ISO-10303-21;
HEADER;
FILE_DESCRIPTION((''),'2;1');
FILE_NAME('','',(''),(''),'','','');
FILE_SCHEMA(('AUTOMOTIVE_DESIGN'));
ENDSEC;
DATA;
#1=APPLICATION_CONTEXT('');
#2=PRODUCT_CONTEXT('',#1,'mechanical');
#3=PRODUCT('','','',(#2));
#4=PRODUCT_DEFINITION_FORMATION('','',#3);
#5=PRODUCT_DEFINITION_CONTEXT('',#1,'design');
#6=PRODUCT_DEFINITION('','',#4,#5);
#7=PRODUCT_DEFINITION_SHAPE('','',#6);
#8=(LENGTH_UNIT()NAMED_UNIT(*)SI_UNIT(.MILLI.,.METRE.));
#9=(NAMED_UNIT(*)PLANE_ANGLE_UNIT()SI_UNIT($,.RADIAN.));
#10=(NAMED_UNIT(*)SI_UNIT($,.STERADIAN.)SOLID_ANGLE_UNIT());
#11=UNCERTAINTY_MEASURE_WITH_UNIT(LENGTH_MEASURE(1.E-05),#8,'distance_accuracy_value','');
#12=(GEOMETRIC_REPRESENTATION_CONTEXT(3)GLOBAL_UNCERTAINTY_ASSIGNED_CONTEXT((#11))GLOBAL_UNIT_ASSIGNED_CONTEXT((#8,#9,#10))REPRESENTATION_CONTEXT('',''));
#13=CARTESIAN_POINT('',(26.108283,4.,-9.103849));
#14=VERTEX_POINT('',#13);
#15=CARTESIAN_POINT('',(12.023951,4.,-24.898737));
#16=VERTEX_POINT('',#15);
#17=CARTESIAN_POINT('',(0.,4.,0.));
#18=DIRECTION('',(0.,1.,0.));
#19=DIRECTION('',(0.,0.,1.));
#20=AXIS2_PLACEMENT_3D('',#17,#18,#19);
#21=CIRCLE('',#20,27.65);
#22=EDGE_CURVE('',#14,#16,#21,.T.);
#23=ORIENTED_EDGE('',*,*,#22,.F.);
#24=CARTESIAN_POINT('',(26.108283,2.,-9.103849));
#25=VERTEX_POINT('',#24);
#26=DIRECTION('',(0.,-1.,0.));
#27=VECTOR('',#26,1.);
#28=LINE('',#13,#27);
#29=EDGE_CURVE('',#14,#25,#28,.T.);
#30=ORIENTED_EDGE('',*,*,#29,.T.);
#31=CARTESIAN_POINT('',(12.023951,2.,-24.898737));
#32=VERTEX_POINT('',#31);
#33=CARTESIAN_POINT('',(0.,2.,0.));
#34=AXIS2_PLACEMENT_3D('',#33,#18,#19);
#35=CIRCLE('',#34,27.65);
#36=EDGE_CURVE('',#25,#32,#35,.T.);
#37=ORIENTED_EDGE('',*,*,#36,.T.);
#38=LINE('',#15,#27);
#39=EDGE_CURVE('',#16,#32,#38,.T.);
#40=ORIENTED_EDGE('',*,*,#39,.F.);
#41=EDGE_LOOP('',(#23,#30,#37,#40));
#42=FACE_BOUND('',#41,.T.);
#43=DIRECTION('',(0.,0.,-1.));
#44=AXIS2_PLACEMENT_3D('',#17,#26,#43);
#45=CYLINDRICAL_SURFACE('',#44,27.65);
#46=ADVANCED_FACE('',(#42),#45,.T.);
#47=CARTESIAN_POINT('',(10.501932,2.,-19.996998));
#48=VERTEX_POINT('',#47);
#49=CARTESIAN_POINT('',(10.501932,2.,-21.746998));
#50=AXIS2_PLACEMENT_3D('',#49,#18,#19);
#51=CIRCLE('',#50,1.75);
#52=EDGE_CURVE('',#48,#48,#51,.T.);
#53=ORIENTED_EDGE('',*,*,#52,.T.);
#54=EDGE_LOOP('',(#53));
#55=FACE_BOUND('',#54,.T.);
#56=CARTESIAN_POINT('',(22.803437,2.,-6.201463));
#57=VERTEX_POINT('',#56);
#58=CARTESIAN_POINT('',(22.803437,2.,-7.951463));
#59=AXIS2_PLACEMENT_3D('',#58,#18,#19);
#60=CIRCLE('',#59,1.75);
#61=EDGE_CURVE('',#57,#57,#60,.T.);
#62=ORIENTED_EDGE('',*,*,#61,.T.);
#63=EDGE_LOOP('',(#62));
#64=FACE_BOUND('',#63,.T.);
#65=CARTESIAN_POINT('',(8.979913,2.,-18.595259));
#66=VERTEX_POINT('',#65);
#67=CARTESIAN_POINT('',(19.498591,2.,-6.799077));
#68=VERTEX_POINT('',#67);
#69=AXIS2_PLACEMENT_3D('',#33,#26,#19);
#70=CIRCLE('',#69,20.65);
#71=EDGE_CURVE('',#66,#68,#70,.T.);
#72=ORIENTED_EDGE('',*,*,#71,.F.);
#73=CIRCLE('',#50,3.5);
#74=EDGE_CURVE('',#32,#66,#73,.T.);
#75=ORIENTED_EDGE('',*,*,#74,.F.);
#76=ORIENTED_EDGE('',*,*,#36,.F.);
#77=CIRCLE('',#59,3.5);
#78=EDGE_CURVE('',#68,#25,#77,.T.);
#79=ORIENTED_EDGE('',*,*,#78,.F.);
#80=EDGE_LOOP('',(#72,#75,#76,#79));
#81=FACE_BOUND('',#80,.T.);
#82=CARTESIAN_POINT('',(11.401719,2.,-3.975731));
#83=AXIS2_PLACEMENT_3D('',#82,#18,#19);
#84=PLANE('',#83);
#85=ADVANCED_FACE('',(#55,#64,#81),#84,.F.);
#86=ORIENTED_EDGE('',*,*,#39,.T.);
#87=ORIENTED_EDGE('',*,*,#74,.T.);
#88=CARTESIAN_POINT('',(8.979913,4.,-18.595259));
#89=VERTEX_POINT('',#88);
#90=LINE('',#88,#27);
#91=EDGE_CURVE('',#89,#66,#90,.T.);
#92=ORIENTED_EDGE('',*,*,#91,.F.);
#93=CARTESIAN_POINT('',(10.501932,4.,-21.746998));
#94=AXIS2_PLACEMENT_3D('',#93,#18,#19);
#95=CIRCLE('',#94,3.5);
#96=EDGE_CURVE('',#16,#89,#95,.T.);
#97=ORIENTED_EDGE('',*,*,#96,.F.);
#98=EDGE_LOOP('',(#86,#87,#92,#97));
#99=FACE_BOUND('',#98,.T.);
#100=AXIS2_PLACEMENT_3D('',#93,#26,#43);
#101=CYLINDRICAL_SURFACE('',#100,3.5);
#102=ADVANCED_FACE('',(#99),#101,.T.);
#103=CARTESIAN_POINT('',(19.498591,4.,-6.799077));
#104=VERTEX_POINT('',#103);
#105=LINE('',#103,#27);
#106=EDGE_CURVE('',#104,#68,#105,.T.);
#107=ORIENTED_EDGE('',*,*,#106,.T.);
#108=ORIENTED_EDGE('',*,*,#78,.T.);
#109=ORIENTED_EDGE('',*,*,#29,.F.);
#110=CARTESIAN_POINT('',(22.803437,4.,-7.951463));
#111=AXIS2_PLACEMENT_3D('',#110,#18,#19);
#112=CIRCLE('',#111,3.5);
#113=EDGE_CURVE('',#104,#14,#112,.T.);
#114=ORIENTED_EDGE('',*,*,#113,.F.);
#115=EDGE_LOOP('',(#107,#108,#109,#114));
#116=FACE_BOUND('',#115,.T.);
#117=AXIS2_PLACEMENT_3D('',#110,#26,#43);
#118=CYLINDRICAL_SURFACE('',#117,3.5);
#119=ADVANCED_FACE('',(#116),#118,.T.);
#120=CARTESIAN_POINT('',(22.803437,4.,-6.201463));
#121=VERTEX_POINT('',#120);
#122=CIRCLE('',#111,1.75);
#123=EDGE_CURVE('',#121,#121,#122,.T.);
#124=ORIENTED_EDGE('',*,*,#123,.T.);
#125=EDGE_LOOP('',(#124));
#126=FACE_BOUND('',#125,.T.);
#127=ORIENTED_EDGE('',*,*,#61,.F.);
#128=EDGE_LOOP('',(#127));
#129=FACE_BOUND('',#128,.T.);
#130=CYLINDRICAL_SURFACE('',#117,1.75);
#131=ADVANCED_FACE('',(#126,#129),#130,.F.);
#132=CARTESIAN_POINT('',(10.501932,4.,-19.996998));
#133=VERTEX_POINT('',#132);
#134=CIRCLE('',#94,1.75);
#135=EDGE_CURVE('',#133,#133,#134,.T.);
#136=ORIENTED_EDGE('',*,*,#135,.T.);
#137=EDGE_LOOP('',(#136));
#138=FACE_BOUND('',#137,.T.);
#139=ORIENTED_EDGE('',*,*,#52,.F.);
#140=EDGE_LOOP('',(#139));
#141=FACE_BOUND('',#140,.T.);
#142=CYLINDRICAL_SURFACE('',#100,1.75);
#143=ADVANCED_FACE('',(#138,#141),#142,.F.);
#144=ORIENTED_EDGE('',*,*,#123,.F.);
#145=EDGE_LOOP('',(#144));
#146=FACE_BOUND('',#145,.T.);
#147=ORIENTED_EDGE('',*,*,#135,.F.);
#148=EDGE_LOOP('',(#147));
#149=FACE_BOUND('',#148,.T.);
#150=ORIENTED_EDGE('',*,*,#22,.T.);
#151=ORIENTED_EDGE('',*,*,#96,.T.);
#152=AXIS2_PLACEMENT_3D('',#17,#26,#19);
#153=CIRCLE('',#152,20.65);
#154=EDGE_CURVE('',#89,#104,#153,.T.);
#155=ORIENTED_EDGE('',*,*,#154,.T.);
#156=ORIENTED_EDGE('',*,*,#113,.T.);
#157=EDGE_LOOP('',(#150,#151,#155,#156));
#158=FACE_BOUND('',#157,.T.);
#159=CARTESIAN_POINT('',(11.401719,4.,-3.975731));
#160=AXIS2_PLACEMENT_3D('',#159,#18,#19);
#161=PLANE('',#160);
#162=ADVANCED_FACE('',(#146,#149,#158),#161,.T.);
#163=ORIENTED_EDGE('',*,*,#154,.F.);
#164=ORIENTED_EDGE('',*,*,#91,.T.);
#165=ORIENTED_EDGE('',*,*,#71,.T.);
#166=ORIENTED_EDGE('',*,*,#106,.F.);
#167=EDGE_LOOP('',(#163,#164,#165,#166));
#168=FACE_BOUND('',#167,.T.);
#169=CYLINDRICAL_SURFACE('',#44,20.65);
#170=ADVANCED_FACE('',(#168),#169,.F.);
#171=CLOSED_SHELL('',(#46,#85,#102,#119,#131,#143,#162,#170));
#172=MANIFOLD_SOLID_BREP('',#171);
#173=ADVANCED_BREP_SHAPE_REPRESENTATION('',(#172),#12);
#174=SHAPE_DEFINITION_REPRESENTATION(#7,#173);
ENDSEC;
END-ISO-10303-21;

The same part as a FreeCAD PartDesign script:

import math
import FreeCAD as App
import Part
import Sketcher

V = App.Vector

doc = App.newDocument("Part")
body = doc.addObject("PartDesign::Body", "Body")

sketch1 = body.newObject("Sketcher::SketchObject", "Sketch")
sketch1.AttachmentSupport = (doc.getObject("XZ_Plane"), [""])
sketch1.MapMode = "FlatFace"
sketch1.AttachmentOffset = App.Placement(V(0, 0, -2), App.Rotation())
sketch1.addGeometry(Part.ArcOfCircle(Part.Circle(V(0, 0, 0), V(0, 0, 1), 27.6), math.radians(-64), math.radians(-19)), False)
sketch1.addGeometry(Part.ArcOfCircle(Part.Circle(V(10.5, -21.7, 0), V(0, 0, 1), 3.5), math.radians(116), math.radians(296)), False)
sketch1.addGeometry(Part.ArcOfCircle(Part.Circle(V(0, 0, 0), V(0, 0, 1), 20.7), math.radians(-64), math.radians(-19)), False)
sketch1.addGeometry(Part.ArcOfCircle(Part.Circle(V(22.8, -8, 0), V(0, 0, 1), 3.5), math.radians(-19), math.radians(161)), False)
sketch1.addGeometry(Part.Circle(V(22.8, -8, 0), V(0, 0, 1), 1.8), False)
sketch1.addGeometry(Part.Circle(V(10.5, -21.7, 0), V(0, 0, 1), 1.8), False)
sketch1.addConstraint(Sketcher.Constraint("Tangent", 0, 1, 1, 2))
sketch1.addConstraint(Sketcher.Constraint("Tangent", 1, 1, 2, 1))
sketch1.addConstraint(Sketcher.Constraint("Tangent", 2, 2, 3, 2))
sketch1.addConstraint(Sketcher.Constraint("Tangent", 3, 1, 0, 2))
sketch1.addConstraint(Sketcher.Constraint("Coincident", 0, 3, -1, 1))
sketch1.addConstraint(Sketcher.Constraint("Coincident", 2, 3, -1, 1))
sketch1.addConstraint(Sketcher.Constraint("Coincident", 4, 3, 3, 3))
sketch1.addConstraint(Sketcher.Constraint("Coincident", 5, 3, 1, 3))
sketch1.addConstraint(Sketcher.Constraint("Equal", 4, 5))
sketch1.addConstraint(Sketcher.Constraint("Diameter", 4, 3.5))
sketch1.addConstraint(Sketcher.Constraint("Radius", 1, 3.5))
sketch1.addConstraint(Sketcher.Constraint("Radius", 0, 27.65))
sketch1.addConstraint(Sketcher.Constraint("DistanceY", 1, 3, -1, 1, 21.746998))
sketch1.addConstraint(Sketcher.Constraint("DistanceX", -1, 1, 2, 2, 19.498591))
pad1 = body.newObject("PartDesign::Pad", "Pad")
pad1.Profile = sketch1
pad1.Length = 2
pad1.Reversed = True

doc.recompute()
